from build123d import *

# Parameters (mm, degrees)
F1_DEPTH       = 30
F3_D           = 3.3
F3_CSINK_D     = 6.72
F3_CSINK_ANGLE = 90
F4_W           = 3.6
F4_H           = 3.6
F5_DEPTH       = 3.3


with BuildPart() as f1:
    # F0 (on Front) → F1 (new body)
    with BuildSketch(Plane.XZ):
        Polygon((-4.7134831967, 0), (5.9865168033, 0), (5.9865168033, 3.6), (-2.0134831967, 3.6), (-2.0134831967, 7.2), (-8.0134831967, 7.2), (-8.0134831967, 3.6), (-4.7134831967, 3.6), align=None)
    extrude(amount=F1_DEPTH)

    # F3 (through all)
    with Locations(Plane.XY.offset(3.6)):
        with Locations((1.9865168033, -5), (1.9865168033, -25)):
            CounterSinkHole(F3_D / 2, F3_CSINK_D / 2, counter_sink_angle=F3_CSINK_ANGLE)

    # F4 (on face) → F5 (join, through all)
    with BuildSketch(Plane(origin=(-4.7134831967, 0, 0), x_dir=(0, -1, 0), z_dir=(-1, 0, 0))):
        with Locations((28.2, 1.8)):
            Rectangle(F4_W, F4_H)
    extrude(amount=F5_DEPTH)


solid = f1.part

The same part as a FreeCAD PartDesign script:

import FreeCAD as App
import Part
import Sketcher
from FreeCAD import Vector
Q = App.Units.Quantity


def add_polygon(sketch, points):
    """Adds a closed chain of lines whose ends are joined by coincident constraints."""
    first, n = sketch.GeometryCount, len(points)
    for a, b in zip(points, points[1:] + points[:1]):
        sketch.addGeometry(Part.LineSegment(App.Vector(*a, 0), App.Vector(*b, 0)), False)
    for i in range(n):
        sketch.addConstraint(Sketcher.Constraint("Coincident", first + i, 2, first + (i + 1) % n, 1))

doc = App.newDocument("Part")
params = doc.addObject("Spreadsheet::Sheet", "Params")
for row, (alias, value) in enumerate([
    ("sketch1_width", "8 mm"),
    ("sketch1_width2", "6 mm"),
    ("sketch1_width3", "10.7 mm"),
    ("sketch1_height", "3.6 mm"),
    ("pad1_length", "30 mm"),
    ("sketch2_diameter", "3.3 mm"),
    ("hole_diameter", "3.3 mm"),
    ("hole_csink_diameter", "6.72 mm"),
    ("sketch3_width", "3.6 mm"),
    ("pad2_length", "3.3 mm"),
], start=1):
    params.set(f"A{row}", alias)
    params.set(f"B{row}", "=" + value)
    params.setAlias(f"B{row}", alias)

body = doc.addObject("PartDesign::Body", "Body")

# Sketch on XZ plane
sketch1 = body.newObject("Sketcher::SketchObject", "Sketch")
sketch1.AttachmentSupport = (doc.getObject("XZ_Plane"), [""])
sketch1.MapMode = "FlatFace"
add_polygon(sketch1, [(-4.7, 0), (6, 0), (6, 3.6), (-2, 3.6), (-2, 7.2), (-8, 7.2), (-8, 3.6), (-4.7, 3.6)])  # lines 0-7
sketch1.addConstraint(Sketcher.Constraint("Horizontal", 0))
sketch1.addConstraint(Sketcher.Constraint("Vertical", 1))
sketch1.addConstraint(Sketcher.Constraint("Horizontal", 2))
sketch1.addConstraint(Sketcher.Constraint("Vertical", 3))
sketch1.addConstraint(Sketcher.Constraint("Horizontal", 4))
sketch1.addConstraint(Sketcher.Constraint("Vertical", 5))
sketch1.addConstraint(Sketcher.Constraint("Horizontal", 6))
sketch1.addConstraint(Sketcher.Constraint("Vertical", 7))
sketch1.addConstraint(Sketcher.Constraint("PointOnObject", 0, 2, -1))
sketch1.addConstraint(Sketcher.Constraint("Horizontal", 2, 2, 5, 2))
sketch1.addConstraint(Sketcher.Constraint("Equal", 1, 3))
sketch1.addConstraint(Sketcher.Constraint("DistanceX", 2, 2, 2, 1, Q("8 mm")))
sketch1.addConstraint(Sketcher.Constraint("DistanceX", 4, 2, 4, 1, Q("6 mm")))
sketch1.addConstraint(Sketcher.Constraint("DistanceX", 0, 1, 0, 2, Q("10.7 mm")))
sketch1.addConstraint(Sketcher.Constraint("DistanceY", 1, 1, 1, 2, Q("3.6 mm")))
sketch1.addConstraint(Sketcher.Constraint("DistanceX", -1, 1, 0, 2, Q("5.986517 mm")))
sketch1.setExpression("Constraints[19]", "Params.sketch1_width")
sketch1.setExpression("Constraints[20]", "Params.sketch1_width2")
sketch1.setExpression("Constraints[21]", "Params.sketch1_width3")
sketch1.setExpression("Constraints[22]", "Params.sketch1_height")
pad1 = body.newObject("PartDesign::Pad", "Pad")
pad1.Profile = sketch1
pad1.setExpression("Length", "Params.pad1_length")

# Sketch on XY plane
sketch2 = body.newObject("Sketcher::SketchObject", "Sketch001")
sketch2.AttachmentSupport = (doc.getObject("XY_Plane"), [""])
sketch2.MapMode = "FlatFace"
sketch2.AttachmentOffset = App.Placement(Vector(0, 0, 3.6), App.Rotation())
sketch2.addGeometry(Part.Circle(Vector(2, -5, 0), Vector(0, 0, 1), 1.6), False)
sketch2.addGeometry(Part.Circle(Vector(2, -25, 0), Vector(0, 0, 1), 1.6), False)
sketch2.addConstraint(Sketcher.Constraint("Equal", 0, 1))
sketch2.addConstraint(Sketcher.Constraint("Vertical", 0, 3, 1, 3))
sketch2.addConstraint(Sketcher.Constraint("Diameter", 0, Q("3.3 mm")))
sketch2.addConstraint(Sketcher.Constraint("DistanceY", 0, 3, -1, 1, Q("5 mm")))
sketch2.addConstraint(Sketcher.Constraint("DistanceY", 1, 3, -1, 1, Q("25 mm")))
sketch2.addConstraint(Sketcher.Constraint("DistanceX", -1, 1, 0, 3, Q("1.986517 mm")))
sketch2.setExpression("Constraints[2]", "Params.sketch2_diameter")
doc.recompute()
hole = body.newObject("PartDesign::Hole", "Hole")
hole.Profile = sketch2
hole.ThreadType = "None"
hole.setExpression("Diameter", "Params.hole_diameter")
hole.DepthType = "ThroughAll"
hole.HoleCutType = "Countersink"
hole.setExpression("HoleCutDiameter", "Params.hole_csink_diameter")
hole.HoleCutCountersinkAngle = 90

# Sketch on YZ plane
sketch3 = body.newObject("Sketcher::SketchObject", "Sketch002")
sketch3.AttachmentSupport = (doc.getObject("YZ_Plane"), [""])
sketch3.MapMode = "FlatFace"
sketch3.AttachmentOffset = App.Placement(Vector(0, 0, -4.713483), App.Rotation())
add_polygon(sketch3, [(-26.4, 3.6), (-26.4, 0), (-30, 0), (-30, 3.6)])  # lines 0-3
sketch3.addConstraint(Sketcher.Constraint("Vertical", 0))
sketch3.addConstraint(Sketcher.Constraint("Horizontal", 1))
sketch3.addConstraint(Sketcher.Constraint("Vertical", 2))
sketch3.addConstraint(Sketcher.Constraint("Horizontal", 3))
sketch3.addConstraint(Sketcher.Constraint("PointOnObject", 0, 2, -1))
sketch3.addConstraint(Sketcher.Constraint("Equal", 3, 0))
sketch3.addConstraint(Sketcher.Constraint("DistanceX", 1, 2, 1, 1, Q("3.6 mm")))
sketch3.addConstraint(Sketcher.Constraint("DistanceX", 1, 2, -1, 1, Q("30 mm")))
sketch3.setExpression("Constraints[10]", "Params.sketch3_width")
pad2 = body.newObject("PartDesign::Pad", "Pad001")
pad2.Profile = sketch3
pad2.setExpression("Length", "Params.pad2_length")
pad2.Reversed = True

doc.recompute()
